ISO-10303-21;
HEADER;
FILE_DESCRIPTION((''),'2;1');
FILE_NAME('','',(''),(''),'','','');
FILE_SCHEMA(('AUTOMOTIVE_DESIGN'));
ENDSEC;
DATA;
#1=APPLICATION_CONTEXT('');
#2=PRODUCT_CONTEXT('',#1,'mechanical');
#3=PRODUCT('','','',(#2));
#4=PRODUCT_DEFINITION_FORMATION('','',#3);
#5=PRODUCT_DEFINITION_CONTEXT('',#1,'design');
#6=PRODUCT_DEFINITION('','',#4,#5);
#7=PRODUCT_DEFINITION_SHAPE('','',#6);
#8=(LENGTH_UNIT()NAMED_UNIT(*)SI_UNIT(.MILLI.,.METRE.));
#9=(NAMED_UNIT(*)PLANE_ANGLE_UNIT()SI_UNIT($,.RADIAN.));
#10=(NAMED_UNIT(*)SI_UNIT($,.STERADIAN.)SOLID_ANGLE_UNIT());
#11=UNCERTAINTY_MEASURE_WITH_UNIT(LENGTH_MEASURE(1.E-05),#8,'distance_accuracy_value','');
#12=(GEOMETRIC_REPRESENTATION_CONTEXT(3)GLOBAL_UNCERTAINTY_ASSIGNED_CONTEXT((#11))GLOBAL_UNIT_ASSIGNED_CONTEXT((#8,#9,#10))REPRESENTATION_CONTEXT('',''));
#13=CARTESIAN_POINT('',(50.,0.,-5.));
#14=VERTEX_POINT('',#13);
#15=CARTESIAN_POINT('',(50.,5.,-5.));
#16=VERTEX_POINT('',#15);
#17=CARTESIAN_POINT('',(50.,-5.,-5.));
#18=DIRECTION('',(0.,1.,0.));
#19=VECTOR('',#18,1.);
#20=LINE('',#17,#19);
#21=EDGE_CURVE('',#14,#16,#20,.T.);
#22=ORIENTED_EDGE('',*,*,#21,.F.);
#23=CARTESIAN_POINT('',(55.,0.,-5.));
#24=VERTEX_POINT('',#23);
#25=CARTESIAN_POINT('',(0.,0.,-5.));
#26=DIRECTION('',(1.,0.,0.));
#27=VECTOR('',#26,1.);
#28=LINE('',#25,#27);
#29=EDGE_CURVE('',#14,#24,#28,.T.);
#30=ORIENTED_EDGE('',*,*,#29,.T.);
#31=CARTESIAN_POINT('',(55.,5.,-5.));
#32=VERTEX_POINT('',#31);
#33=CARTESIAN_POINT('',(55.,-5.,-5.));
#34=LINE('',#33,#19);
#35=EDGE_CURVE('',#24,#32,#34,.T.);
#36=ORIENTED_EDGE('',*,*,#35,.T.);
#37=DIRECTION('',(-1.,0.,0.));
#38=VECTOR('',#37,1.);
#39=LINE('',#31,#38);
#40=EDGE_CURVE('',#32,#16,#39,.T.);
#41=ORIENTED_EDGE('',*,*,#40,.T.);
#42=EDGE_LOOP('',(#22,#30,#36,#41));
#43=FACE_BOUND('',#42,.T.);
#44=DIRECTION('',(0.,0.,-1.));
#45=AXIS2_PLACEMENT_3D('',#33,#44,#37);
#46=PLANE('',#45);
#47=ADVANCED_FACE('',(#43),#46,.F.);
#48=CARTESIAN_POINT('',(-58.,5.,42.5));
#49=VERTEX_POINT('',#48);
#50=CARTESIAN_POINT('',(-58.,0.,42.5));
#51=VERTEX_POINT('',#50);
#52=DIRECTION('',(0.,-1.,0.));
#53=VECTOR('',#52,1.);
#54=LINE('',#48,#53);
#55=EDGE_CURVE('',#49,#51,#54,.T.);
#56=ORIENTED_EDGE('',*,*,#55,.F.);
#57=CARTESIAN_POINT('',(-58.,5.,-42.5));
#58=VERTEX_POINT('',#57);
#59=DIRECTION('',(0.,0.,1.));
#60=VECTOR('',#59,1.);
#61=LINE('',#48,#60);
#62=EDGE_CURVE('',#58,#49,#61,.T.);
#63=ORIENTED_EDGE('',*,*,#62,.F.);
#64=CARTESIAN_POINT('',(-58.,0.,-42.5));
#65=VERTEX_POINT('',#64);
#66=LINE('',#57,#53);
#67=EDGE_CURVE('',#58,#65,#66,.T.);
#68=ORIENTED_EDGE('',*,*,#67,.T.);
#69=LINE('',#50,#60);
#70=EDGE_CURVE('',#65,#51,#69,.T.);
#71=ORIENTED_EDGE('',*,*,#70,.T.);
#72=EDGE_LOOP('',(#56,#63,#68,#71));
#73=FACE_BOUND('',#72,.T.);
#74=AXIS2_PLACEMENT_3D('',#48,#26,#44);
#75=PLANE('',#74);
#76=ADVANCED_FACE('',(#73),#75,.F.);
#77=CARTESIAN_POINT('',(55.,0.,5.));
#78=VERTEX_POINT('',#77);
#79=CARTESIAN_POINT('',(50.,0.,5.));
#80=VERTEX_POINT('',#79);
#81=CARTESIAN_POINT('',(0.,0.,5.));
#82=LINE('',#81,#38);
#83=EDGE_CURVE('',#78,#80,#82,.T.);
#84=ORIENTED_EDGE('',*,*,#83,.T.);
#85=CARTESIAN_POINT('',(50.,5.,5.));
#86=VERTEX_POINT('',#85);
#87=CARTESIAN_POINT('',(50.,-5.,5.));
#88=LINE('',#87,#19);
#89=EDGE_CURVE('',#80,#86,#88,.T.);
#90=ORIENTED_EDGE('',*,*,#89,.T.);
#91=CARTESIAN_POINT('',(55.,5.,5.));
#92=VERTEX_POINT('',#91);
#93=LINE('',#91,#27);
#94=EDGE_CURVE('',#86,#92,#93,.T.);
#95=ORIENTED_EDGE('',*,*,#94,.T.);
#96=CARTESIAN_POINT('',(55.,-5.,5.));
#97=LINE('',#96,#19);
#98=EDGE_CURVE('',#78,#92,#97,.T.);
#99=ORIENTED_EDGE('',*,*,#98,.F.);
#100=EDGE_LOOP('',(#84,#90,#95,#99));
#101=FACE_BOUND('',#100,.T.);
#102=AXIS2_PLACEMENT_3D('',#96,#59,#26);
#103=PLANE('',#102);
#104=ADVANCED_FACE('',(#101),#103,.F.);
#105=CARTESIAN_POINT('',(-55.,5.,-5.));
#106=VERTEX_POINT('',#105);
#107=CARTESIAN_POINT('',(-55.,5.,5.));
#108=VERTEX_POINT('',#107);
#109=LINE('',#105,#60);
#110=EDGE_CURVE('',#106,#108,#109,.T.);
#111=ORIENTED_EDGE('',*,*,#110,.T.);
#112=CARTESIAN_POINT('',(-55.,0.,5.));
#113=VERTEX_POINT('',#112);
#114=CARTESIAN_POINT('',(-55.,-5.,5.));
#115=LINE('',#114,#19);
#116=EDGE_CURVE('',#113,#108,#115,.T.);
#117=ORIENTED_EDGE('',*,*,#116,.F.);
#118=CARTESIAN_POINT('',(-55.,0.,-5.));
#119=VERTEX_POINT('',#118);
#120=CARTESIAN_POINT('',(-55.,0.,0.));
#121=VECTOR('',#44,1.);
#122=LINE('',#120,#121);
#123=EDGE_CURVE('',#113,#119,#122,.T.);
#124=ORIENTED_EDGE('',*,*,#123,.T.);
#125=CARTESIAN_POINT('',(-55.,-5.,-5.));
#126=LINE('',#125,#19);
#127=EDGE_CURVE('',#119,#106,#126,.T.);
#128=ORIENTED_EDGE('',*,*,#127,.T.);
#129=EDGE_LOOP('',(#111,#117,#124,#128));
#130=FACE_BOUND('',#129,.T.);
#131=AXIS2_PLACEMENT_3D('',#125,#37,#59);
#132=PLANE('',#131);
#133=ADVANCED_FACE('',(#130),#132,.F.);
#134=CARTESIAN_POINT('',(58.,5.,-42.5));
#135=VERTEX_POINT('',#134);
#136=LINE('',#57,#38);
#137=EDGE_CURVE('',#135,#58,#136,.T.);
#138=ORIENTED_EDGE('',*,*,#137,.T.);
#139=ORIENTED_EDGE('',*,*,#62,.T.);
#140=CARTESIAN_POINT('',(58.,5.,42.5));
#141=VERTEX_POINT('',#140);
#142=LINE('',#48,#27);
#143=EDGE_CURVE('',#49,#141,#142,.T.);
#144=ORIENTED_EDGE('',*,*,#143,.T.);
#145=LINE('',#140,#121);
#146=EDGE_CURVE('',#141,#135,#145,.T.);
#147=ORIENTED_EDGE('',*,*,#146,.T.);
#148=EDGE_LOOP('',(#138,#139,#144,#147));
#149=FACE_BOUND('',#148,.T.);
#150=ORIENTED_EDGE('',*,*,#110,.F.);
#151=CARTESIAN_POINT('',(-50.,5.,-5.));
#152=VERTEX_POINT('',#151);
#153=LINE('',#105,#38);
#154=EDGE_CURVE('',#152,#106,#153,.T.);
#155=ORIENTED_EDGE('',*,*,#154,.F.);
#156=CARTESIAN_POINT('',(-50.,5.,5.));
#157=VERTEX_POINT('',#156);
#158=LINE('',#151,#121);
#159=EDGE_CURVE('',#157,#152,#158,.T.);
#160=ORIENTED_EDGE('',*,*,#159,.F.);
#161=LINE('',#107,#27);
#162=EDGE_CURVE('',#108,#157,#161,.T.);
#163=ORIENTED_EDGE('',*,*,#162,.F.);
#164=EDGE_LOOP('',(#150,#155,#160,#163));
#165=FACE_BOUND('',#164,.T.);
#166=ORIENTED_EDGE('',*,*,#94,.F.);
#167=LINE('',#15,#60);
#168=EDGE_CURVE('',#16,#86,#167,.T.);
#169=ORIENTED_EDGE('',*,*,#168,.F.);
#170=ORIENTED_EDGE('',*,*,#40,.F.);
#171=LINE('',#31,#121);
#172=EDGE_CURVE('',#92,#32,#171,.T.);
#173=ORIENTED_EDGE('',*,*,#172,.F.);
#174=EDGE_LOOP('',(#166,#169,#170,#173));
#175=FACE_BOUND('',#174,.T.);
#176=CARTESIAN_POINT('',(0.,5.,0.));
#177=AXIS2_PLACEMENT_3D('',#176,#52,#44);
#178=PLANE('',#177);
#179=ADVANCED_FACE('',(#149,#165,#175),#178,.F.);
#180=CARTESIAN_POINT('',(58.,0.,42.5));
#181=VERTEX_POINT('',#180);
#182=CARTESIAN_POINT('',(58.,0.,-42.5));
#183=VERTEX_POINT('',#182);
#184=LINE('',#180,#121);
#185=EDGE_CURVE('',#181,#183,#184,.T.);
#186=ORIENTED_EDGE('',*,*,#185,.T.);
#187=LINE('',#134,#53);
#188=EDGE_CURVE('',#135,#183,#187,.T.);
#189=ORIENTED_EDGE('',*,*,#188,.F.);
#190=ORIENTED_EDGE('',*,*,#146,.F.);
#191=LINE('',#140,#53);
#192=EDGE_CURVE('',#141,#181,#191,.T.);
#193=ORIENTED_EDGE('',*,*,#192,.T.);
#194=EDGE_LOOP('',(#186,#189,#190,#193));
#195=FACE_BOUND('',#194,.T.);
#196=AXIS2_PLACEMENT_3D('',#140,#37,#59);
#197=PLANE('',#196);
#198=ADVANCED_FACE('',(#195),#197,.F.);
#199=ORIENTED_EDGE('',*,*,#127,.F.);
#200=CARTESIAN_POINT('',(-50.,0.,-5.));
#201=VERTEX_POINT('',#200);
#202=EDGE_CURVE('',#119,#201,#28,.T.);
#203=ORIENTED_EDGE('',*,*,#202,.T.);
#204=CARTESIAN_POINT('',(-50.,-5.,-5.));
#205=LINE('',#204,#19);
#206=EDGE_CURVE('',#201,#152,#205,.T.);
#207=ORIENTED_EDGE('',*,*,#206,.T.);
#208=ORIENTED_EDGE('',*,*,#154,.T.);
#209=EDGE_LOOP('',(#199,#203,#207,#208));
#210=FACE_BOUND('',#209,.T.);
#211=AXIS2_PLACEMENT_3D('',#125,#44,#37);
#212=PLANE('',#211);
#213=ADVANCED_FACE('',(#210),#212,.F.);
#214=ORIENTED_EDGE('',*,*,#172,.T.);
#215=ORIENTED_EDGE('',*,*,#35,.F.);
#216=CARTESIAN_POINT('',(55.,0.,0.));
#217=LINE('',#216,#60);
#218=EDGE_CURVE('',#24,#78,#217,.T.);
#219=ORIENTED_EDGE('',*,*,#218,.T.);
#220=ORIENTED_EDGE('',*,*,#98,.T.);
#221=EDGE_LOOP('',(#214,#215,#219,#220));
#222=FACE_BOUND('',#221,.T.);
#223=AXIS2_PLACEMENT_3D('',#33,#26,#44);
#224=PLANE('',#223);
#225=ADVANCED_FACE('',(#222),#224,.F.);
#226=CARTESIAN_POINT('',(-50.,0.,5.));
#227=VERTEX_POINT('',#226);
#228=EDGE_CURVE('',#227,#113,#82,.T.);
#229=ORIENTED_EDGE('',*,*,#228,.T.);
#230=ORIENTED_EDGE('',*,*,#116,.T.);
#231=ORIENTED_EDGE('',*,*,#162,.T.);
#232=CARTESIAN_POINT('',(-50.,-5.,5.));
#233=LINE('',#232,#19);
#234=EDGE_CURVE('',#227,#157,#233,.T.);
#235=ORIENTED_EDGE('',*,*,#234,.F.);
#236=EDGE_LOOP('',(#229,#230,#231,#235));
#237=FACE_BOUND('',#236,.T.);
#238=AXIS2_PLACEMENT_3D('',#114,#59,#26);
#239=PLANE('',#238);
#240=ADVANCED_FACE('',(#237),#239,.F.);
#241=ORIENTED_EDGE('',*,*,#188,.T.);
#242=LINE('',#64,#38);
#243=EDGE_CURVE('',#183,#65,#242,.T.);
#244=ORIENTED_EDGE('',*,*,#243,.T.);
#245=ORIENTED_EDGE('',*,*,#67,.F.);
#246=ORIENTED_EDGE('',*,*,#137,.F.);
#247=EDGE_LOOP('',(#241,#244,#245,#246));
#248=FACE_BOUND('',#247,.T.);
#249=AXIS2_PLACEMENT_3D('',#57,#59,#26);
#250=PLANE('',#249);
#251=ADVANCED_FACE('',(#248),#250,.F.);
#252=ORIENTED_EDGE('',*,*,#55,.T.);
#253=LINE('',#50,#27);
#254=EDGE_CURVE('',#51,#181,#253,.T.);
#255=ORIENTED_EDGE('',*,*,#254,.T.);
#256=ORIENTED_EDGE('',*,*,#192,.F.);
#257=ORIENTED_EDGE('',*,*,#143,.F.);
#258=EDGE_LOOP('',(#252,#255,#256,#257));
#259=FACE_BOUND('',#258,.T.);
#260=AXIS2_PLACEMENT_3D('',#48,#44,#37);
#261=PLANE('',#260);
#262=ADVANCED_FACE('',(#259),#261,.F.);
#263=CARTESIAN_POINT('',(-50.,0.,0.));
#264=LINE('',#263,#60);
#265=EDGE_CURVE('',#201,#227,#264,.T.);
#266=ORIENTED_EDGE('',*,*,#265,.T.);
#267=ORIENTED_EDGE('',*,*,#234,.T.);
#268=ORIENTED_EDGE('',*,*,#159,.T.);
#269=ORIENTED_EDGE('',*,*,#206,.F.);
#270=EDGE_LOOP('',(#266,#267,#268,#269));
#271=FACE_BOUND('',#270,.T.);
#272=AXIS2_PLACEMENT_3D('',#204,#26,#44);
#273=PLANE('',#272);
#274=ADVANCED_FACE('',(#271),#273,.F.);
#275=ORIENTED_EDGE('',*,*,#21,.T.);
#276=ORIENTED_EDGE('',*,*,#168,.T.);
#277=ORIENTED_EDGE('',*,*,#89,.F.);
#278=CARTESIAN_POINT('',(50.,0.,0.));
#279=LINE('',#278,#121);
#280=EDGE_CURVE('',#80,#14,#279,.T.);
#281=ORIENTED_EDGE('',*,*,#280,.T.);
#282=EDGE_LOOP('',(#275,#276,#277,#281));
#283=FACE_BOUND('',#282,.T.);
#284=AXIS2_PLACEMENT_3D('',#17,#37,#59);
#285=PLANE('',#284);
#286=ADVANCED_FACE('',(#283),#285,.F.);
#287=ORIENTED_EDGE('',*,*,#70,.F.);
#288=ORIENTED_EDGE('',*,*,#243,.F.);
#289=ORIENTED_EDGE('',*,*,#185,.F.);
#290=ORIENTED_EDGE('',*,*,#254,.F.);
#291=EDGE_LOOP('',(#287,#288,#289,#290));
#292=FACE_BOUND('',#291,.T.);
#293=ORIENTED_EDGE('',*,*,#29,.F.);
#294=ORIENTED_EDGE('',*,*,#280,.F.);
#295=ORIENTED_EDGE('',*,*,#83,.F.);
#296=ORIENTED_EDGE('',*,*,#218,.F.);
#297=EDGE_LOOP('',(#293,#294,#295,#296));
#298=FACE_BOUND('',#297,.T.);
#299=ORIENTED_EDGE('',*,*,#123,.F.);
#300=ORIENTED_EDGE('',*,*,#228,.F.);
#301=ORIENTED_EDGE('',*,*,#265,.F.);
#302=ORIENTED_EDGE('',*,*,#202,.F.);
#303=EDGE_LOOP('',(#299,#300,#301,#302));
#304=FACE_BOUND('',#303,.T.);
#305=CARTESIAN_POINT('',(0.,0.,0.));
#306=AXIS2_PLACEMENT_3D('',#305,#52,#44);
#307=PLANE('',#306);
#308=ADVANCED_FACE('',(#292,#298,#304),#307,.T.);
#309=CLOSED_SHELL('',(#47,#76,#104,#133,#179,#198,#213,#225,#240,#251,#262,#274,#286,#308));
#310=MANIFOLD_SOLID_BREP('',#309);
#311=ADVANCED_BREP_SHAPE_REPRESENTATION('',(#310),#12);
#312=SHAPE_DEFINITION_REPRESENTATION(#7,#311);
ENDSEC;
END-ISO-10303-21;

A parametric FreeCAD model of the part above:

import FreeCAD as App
import Part
import Sketcher
from FreeCAD import Vector

doc = App.newDocument("Part")
body = doc.addObject("PartDesign::Body", "Body")

sketch1 = body.newObject("Sketcher::SketchObject", "Sketch")
sketch1.AttachmentSupport = (doc.getObject("XZ_Plane"), [""])
sketch1.MapMode = "FlatFace"
sketch1.addGeometry(Part.LineSegment(Vector(-58, -42, 0), Vector(-58, 42, 0)), False)
sketch1.addGeometry(Part.LineSegment(Vector(-58, 42, 0), Vector(58, 42, 0)), False)
sketch1.addGeometry(Part.LineSegment(Vector(58, 42, 0), Vector(58, -42, 0)), False)
sketch1.addGeometry(Part.LineSegment(Vector(58, -42, 0), Vector(-58, -42, 0)), False)
sketch1.addConstraint(Sketcher.Constraint("Coincident", 0, 2, 1, 1))
sketch1.addConstraint(Sketcher.Constraint("Coincident", 1, 2, 2, 1))
sketch1.addConstraint(Sketcher.Constraint("Coincident", 2, 2, 3, 1))
sketch1.addConstraint(Sketcher.Constraint("Coincident", 3, 2, 0, 1))
sketch1.addConstraint(Sketcher.Constraint("Vertical", 0))
sketch1.addConstraint(Sketcher.Constraint("Horizontal", 1))
sketch1.addConstraint(Sketcher.Constraint("Vertical", 2))
sketch1.addConstraint(Sketcher.Constraint("Horizontal", 3))
sketch1.addConstraint(Sketcher.Constraint("Symmetric", 0, 2, 2, 2, -1, 1))
sketch1.addConstraint(Sketcher.Constraint("DistanceX", 1, 1, 1, 2, 116.0))
sketch1.addConstraint(Sketcher.Constraint("DistanceY", 0, 1, 0, 2, 85.0))
pad1 = body.newObject("PartDesign::Pad", "Pad")
pad1.Profile = sketch1
pad1.Length = 5
pad1.Reversed = True

sketch2 = body.newObject("Sketcher::SketchObject", "Sketch001")
sketch2.AttachmentSupport = (doc.getObject("XZ_Plane"), [""])
sketch2.MapMode = "FlatFace"
sketch2.AttachmentOffset = App.Placement(Vector(0, 0, -5), App.Rotation())
sketch2.addGeometry(Part.LineSegment(Vector(-55, -5, 0), Vector(-55, 5, 0)), False)
sketch2.addGeometry(Part.LineSegment(Vector(-55, 5, 0), Vector(-50, 5, 0)), False)
sketch2.addGeometry(Part.LineSegment(Vector(-50, 5, 0), Vector(-50, -5, 0)), False)
sketch2.addGeometry(Part.LineSegment(Vector(-50, -5, 0), Vector(-55, -5, 0)), False)
sketch2.addGeometry(Part.LineSegment(Vector(50, -5, 0), Vector(50, 5, 0)), False)
sketch2.addGeometry(Part.LineSegment(Vector(50, 5, 0), Vector(55, 5, 0)), False)
sketch2.addGeometry(Part.LineSegment(Vector(55, 5, 0), Vector(55, -5, 0)), False)
sketch2.addGeometry(Part.LineSegment(Vector(55, -5, 0), Vector(50, -5, 0)), False)
sketch2.addConstraint(Sketcher.Constraint("Coincident", 0, 2, 1, 1))
sketch2.addConstraint(Sketcher.Constraint("Coincident", 1, 2, 2, 1))
sketch2.addConstraint(Sketcher.Constraint("Coincident", 2, 2, 3, 1))
sketch2.addConstraint(Sketcher.Constraint("Coincident", 3, 2, 0, 1))
sketch2.addConstraint(Sketcher.Constraint("Coincident", 4, 2, 5, 1))
sketch2.addConstraint(Sketcher.Constraint("Coincident", 5, 2, 6, 1))
sketch2.addConstraint(Sketcher.Constraint("Coincident", 6, 2, 7, 1))
sketch2.addConstraint(Sketcher.Constraint("Coincident", 7, 2, 4, 1))
sketch2.addConstraint(Sketcher.Constraint("Vertical", 0))
sketch2.addConstraint(Sketcher.Constraint("Horizontal", 1))
sketch2.addConstraint(Sketcher.Constraint("Vertical", 2))
sketch2.addConstraint(Sketcher.Constraint("Horizontal", 3))
sketch2.addConstraint(Sketcher.Constraint("Vertical", 4))
sketch2.addConstraint(Sketcher.Constraint("Horizontal", 5))
sketch2.addConstraint(Sketcher.Constraint("Vertical", 6))
sketch2.addConstraint(Sketcher.Constraint("Horizontal", 7))
sketch2.addConstraint(Sketcher.Constraint("Symmetric", 2, 2, 4, 2, -1, 1))
sketch2.addConstraint(Sketcher.Constraint("Symmetric", 0, 2, 6, 2, -1, 1))
sketch2.addConstraint(Sketcher.Constraint("Horizontal", 1, 2, 4, 2))
sketch2.addConstraint(Sketcher.Constraint("DistanceX", 1, 1, 1, 2, 5.0))
sketch2.addConstraint(Sketcher.Constraint("DistanceY", 0, 1, 0, 2, 10.0))
sketch2.addConstraint(Sketcher.Constraint("DistanceX", 0, 2, -1, 1, 55.0))
pocket1 = body.newObject("PartDesign::Pocket", "Pocket")
pocket1.Profile = sketch2
pocket1.Length = 10
pocket1.Reversed = True

doc.recompute()
